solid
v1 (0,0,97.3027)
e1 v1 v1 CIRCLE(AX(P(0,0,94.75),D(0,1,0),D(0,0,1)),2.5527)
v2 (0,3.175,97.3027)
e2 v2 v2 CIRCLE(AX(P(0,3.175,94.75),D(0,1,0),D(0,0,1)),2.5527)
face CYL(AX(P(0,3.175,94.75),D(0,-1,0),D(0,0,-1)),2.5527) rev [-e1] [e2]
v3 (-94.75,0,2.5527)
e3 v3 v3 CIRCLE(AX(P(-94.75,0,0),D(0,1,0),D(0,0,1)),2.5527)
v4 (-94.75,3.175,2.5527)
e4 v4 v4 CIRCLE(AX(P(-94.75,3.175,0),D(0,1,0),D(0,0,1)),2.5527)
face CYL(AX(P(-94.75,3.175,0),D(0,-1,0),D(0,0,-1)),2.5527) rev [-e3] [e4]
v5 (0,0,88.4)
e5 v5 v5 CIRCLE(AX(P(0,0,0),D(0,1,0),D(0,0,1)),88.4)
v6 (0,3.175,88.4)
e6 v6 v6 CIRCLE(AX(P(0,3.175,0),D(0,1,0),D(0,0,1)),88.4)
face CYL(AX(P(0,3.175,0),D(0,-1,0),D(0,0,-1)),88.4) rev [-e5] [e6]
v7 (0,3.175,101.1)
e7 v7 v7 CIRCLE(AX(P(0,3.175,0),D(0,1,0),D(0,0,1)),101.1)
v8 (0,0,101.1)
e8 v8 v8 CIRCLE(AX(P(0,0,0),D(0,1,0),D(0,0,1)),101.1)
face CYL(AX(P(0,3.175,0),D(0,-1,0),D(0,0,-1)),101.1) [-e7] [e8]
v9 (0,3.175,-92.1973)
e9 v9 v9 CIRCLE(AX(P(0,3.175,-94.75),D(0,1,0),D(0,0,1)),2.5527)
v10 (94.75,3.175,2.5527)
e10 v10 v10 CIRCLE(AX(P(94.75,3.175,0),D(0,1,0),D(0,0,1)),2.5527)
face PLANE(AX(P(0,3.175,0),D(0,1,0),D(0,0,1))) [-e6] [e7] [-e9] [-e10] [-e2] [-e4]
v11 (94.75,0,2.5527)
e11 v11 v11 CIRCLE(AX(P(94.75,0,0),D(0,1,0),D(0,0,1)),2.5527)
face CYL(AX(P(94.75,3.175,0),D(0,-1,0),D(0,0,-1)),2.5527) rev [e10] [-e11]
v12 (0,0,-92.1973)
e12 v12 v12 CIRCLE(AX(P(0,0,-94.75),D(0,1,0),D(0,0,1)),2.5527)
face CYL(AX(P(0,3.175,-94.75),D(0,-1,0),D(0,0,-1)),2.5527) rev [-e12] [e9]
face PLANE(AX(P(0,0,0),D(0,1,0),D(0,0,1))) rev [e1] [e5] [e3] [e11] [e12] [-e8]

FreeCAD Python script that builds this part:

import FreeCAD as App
import Part
import Sketcher

V = App.Vector
Q = App.Units.Quantity

doc = App.newDocument("Part")
params = doc.addObject("Spreadsheet::Sheet", "Params")
for row, (alias, value) in enumerate([
    ("sketch1_diameter", "202.2 mm"),
    ("sketch1_diameter2", "176.8 mm"),
    ("pad1_length", "3.175 mm"),
], start=1):
    params.set(f"A{row}", alias)
    params.set(f"B{row}", "=" + value)
    params.setAlias(f"B{row}", alias)

body = doc.addObject("PartDesign::Body", "Body")

sketch1 = doc.addObject("Sketcher::SketchObject", "Sketch")
body.addObject(sketch1)
sketch1.AttachmentSupport = (doc.XZ_Plane, [""])
sketch1.MapMode = "FlatFace"
sketch1.addGeometry([
    Part.Circle(V(0, 0, 0), V(0, 0, 1), 101.1),
    Part.Circle(V(0, -94.7, 0), V(0, 0, 1), 2.6),
    Part.Circle(V(-94.7, 0, 0), V(0, 0, 1), 2.6),
    Part.Circle(V(94.7, 0, 0), V(0, 0, 1), 2.6),
    Part.Circle(V(0, 0, 0), V(0, 0, 1), 88.4),
    Part.Circle(V(0, 94.7, 0), V(0, 0, 1), 2.6),
], False)
sketch1.addConstraint([
    Sketcher.Constraint("Coincident", 0, 3, -1, 1),
    Sketcher.Constraint("Coincident", 4, 3, -1, 1),
    Sketcher.Constraint("Equal", 1, 2),
    Sketcher.Constraint("Equal", 2, 3),
    Sketcher.Constraint("Equal", 3, 5),
    Sketcher.Constraint("Symmetric", 2, 3, 3, 3, -1, 1),
    Sketcher.Constraint("Symmetric", 1, 3, 5, 3, -1, 1),
    Sketcher.Constraint("PointOnObject", 1, 3, -2),
    Sketcher.Constraint("PointOnObject", 2, 3, -1),
    Sketcher.Constraint("Diameter", 0, Q("202.2 mm")),
    Sketcher.Constraint("Diameter", 4, Q("176.8 mm")),
    Sketcher.Constraint("Diameter", 1, Q("5.1054 mm")),
    Sketcher.Constraint("DistanceX", 2, 3, 3, 3, Q("189.5 mm")),
    Sketcher.Constraint("DistanceY", 1, 3, 5, 3, Q("189.5 mm")),
])
sketch1.setExpression("Constraints[9]", "Params.sketch1_diameter")
sketch1.setExpression("Constraints[10]", "Params.sketch1_diameter2")
pad1 = doc.addObject("PartDesign::Pad", "Pad")
body.addObject(pad1)
pad1.Profile = sketch1
pad1.setExpression("Length", "Params.pad1_length")
pad1.Reversed = True

doc.recompute()
